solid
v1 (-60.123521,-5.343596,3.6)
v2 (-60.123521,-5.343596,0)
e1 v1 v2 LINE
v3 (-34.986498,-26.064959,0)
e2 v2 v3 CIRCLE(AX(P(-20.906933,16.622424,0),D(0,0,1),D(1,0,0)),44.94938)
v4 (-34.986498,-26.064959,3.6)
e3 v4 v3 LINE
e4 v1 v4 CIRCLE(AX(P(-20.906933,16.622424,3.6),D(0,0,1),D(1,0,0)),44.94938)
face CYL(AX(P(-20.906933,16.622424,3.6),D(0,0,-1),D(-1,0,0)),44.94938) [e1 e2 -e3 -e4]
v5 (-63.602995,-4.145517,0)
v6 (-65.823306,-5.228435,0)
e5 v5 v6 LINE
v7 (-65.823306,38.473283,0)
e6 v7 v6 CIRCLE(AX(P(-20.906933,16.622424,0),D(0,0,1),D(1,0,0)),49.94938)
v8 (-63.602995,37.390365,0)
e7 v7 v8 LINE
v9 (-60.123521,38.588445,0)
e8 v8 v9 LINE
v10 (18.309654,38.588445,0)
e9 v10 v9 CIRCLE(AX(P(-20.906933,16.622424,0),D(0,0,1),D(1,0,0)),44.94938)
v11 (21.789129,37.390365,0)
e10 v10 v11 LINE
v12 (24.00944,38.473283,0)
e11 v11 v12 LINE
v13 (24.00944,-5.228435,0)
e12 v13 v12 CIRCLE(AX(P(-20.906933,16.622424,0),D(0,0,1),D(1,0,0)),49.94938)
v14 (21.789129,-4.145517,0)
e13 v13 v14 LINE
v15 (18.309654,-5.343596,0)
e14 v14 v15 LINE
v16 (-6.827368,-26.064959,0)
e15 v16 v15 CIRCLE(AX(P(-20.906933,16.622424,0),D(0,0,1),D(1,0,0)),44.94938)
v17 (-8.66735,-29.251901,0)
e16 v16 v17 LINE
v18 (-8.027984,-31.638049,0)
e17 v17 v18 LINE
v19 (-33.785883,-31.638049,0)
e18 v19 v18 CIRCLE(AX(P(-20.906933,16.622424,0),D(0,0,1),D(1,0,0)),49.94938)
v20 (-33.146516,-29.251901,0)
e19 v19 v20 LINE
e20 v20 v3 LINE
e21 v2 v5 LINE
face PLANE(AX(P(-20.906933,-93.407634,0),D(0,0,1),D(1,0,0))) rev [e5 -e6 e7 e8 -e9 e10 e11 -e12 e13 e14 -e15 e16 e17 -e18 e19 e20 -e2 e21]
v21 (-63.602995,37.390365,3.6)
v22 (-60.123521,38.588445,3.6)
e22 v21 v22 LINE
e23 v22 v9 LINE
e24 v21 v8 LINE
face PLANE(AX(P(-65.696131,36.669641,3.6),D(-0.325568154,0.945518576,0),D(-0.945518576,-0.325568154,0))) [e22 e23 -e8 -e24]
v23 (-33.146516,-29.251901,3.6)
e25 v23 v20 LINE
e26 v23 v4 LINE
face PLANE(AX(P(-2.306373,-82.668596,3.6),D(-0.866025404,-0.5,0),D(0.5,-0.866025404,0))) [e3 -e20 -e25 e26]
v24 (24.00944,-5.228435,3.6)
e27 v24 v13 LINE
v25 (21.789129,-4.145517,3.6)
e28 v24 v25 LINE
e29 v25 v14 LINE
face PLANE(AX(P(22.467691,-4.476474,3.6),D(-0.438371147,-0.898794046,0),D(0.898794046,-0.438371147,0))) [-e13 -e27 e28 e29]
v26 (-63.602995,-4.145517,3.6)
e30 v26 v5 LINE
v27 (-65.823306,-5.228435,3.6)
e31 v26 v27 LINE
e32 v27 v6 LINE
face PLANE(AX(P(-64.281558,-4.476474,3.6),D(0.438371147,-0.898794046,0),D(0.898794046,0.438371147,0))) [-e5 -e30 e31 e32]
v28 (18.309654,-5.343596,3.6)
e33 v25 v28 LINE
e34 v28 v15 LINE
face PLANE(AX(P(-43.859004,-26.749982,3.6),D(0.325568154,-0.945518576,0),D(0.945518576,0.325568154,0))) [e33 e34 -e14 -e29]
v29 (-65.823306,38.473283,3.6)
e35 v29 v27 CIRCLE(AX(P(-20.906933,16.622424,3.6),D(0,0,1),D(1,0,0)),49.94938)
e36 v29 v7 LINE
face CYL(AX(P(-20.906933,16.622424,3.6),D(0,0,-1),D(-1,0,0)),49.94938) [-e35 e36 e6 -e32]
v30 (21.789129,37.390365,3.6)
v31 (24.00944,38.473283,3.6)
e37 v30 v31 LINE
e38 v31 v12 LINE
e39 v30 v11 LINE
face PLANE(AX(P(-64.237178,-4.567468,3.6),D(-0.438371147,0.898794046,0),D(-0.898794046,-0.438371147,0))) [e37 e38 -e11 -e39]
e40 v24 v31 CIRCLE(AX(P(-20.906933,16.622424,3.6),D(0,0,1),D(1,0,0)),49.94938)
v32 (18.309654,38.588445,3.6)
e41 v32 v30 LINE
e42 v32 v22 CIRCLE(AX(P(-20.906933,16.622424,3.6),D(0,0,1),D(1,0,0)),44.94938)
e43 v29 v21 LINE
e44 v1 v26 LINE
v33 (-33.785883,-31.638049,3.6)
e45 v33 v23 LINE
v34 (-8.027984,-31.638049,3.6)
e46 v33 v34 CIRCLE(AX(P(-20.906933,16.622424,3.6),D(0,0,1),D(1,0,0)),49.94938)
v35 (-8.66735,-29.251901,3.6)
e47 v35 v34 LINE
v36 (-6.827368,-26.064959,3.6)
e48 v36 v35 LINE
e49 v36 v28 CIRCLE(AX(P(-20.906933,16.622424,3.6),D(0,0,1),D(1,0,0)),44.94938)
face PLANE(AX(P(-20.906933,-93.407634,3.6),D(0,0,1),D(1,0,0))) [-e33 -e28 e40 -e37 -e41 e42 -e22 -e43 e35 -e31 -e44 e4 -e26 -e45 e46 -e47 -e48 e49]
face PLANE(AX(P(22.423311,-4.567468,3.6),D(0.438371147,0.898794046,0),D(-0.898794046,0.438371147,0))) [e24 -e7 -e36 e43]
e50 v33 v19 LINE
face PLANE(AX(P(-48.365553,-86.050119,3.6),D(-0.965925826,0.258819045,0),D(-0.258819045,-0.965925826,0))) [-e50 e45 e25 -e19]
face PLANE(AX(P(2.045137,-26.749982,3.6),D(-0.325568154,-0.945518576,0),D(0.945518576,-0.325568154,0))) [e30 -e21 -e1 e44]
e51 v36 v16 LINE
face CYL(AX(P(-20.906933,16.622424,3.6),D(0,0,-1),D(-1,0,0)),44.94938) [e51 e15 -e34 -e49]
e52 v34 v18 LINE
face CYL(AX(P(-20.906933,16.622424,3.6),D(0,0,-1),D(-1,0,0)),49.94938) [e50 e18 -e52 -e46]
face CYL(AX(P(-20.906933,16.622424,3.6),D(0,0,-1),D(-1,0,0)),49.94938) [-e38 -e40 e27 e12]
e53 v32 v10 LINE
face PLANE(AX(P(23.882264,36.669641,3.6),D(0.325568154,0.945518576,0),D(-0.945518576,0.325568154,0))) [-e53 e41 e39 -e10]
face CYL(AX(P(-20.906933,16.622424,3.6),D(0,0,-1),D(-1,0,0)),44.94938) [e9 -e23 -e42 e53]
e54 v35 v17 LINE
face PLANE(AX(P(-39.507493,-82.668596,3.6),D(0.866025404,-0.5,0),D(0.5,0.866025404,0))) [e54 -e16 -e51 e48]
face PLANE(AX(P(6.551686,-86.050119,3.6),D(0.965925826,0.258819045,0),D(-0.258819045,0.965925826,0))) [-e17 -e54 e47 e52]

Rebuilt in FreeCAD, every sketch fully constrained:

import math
import FreeCAD as App
import Part
import Sketcher

V = App.Vector
Q = App.Units.Quantity

doc = App.newDocument("Part")
body = doc.addObject("PartDesign::Body", "Body")

sketch1 = body.newObject("Sketcher::SketchObject", "Sketch")
sketch1.AttachmentSupport = (doc.getObject("XY_Plane"), [""])
sketch1.MapMode = "FlatFace"
sketch1.addGeometry(Part.LineSegment(V(-33.146516, -29.251901, 0), V(-33.785883, -31.638049, 0)), False)
sketch1.addGeometry(Part.ArcOfCircle(Part.Circle(V(-20.906933, 16.622424, 0), V(0, 0, 1), 49.94938), math.radians(-104.941935), math.radians(-75.058065)), False)
sketch1.addGeometry(Part.LineSegment(V(-8.027984, -31.638049, 0), V(-8.66735, -29.251901, 0)), False)
sketch1.addGeometry(Part.LineSegment(V(-8.66735, -29.251901, 0), V(-6.827368, -26.064959, 0)), False)
sketch1.addGeometry(Part.ArcOfCircle(Part.Circle(V(-20.906933, 16.622424, 0), V(0, 0, 1), 44.94938), math.radians(-71.745911), math.radians(-29.254089)), False)
sketch1.addGeometry(Part.LineSegment(V(18.309654, -5.343596, 0), V(21.789129, -4.145517, 0)), False)
sketch1.addGeometry(Part.LineSegment(V(21.789129, -4.145517, 0), V(24.00944, -5.228435, 0)), False)
sketch1.addGeometry(Part.ArcOfCircle(Part.Circle(V(-20.906933, 16.622424, 0), V(0, 0, 1), 49.94938), math.radians(-25.941935), math.radians(0)), False)
sketch1.addGeometry(Part.ArcOfCircle(Part.Circle(V(-20.906933, 16.622424, 0), V(0, 0, 1), 49.94938), math.radians(0), math.radians(25.941935)), False)
sketch1.addGeometry(Part.LineSegment(V(24.00944, 38.473283, 0), V(21.789129, 37.390365, 0)), False)
sketch1.addGeometry(Part.LineSegment(V(21.789129, 37.390365, 0), V(18.309654, 38.588445, 0)), False)
sketch1.addGeometry(Part.ArcOfCircle(Part.Circle(V(-20.906933, 16.622424, 0), V(0, 0, 1), 44.94938), math.radians(29.254089), math.radians(150.745911)), False)
sketch1.addGeometry(Part.LineSegment(V(-60.123521, 38.588445, 0), V(-63.602995, 37.390365, 0)), False)
sketch1.addGeometry(Part.LineSegment(V(-63.602995, 37.390365, 0), V(-65.823306, 38.473283, 0)), False)
sketch1.addGeometry(Part.ArcOfCircle(Part.Circle(V(-20.906933, 16.622424, 0), V(0, 0, 1), 49.94938), math.radians(154.058065), math.radians(205.941935)), False)
sketch1.addGeometry(Part.LineSegment(V(-65.823306, -5.228435, 0), V(-63.602995, -4.145517, 0)), False)
sketch1.addGeometry(Part.LineSegment(V(-63.602995, -4.145517, 0), V(-60.123521, -5.343596, 0)), False)
sketch1.addGeometry(Part.ArcOfCircle(Part.Circle(V(-20.906933, 16.622424, 0), V(0, 0, 1), 44.94938), math.radians(-150.745911), math.radians(-108.254089)), False)
sketch1.addGeometry(Part.LineSegment(V(-34.986498, -26.064959, 0), V(-33.146516, -29.251901, 0)), False)
sketch1.addConstraint(Sketcher.Constraint("Coincident", 0, 2, 1, 1))
sketch1.addConstraint(Sketcher.Constraint("Coincident", 1, 2, 2, 1))
sketch1.addConstraint(Sketcher.Constraint("Coincident", 2, 2, 3, 1))
sketch1.addConstraint(Sketcher.Constraint("Coincident", 3, 2, 4, 1))
sketch1.addConstraint(Sketcher.Constraint("Coincident", 4, 2, 5, 1))
sketch1.addConstraint(Sketcher.Constraint("Coincident", 5, 2, 6, 1))
sketch1.addConstraint(Sketcher.Constraint("Coincident", 6, 2, 7, 1))
sketch1.addConstraint(Sketcher.Constraint("Tangent", 7, 2, 8, 1))
sketch1.addConstraint(Sketcher.Constraint("Coincident", 8, 2, 9, 1))
sketch1.addConstraint(Sketcher.Constraint("Coincident", 9, 2, 10, 1))
sketch1.addConstraint(Sketcher.Constraint("Coincident", 10, 2, 11, 1))
sketch1.addConstraint(Sketcher.Constraint("Coincident", 11, 2, 12, 1))
sketch1.addConstraint(Sketcher.Constraint("Coincident", 12, 2, 13, 1))
sketch1.addConstraint(Sketcher.Constraint("Coincident", 13, 2, 14, 1))
sketch1.addConstraint(Sketcher.Constraint("Coincident", 14, 2, 15, 1))
sketch1.addConstraint(Sketcher.Constraint("Coincident", 15, 2, 16, 1))
sketch1.addConstraint(Sketcher.Constraint("Coincident", 16, 2, 17, 1))
sketch1.addConstraint(Sketcher.Constraint("Coincident", 17, 2, 18, 1))
sketch1.addConstraint(Sketcher.Constraint("Coincident", 18, 2, 0, 1))
sketch1.addConstraint(Sketcher.Constraint("Coincident", 4, 3, 1, 3))
sketch1.addConstraint(Sketcher.Constraint("Coincident", 7, 3, 1, 3))
sketch1.addConstraint(Sketcher.Constraint("Coincident", 11, 3, 1, 3))
sketch1.addConstraint(Sketcher.Constraint("Coincident", 14, 3, 1, 3))
sketch1.addConstraint(Sketcher.Constraint("Coincident", 17, 3, 1, 3))
sketch1.addConstraint(Sketcher.Constraint("Equal", 1, 7))
sketch1.addConstraint(Sketcher.Constraint("Equal", 7, 8))
sketch1.addConstraint(Sketcher.Constraint("Equal", 4, 11))
sketch1.addConstraint(Sketcher.Constraint("Equal", 8, 14))
sketch1.addConstraint(Sketcher.Constraint("Equal", 11, 17))
sketch1.addConstraint(Sketcher.Constraint("Parallel", 5, 12))
sketch1.addConstraint(Sketcher.Constraint("Parallel", 6, 13))
sketch1.addConstraint(Sketcher.Constraint("Parallel", 9, 15))
sketch1.addConstraint(Sketcher.Constraint("Parallel", 10, 16))
sketch1.addConstraint(Sketcher.Constraint("Horizontal", 0, 2, 1, 2))
sketch1.addConstraint(Sketcher.Constraint("Horizontal", 17, 3, 7, 2))
sketch1.addConstraint(Sketcher.Constraint("Horizontal", 10, 2, 11, 2))
sketch1.addConstraint(Sketcher.Constraint("Horizontal", 9, 2, 12, 2))
sketch1.addConstraint(Sketcher.Constraint("Horizontal", 8, 2, 13, 2))
sketch1.addConstraint(Sketcher.Constraint("Horizontal", 6, 2, 14, 2))
sketch1.addConstraint(Sketcher.Constraint("Horizontal", 5, 2, 15, 2))
sketch1.addConstraint(Sketcher.Constraint("Horizontal", 3, 2, 17, 2))
sketch1.addConstraint(Sketcher.Constraint("Horizontal", 2, 2, 18, 2))
sketch1.addConstraint(Sketcher.Constraint("Vertical", 6, 2, 8, 2))
sketch1.addConstraint(Sketcher.Constraint("Vertical", 5, 2, 9, 2))
sketch1.addConstraint(Sketcher.Constraint("Vertical", 4, 2, 10, 2))
sketch1.addConstraint(Sketcher.Constraint("Equal", 0, 2))
sketch1.addConstraint(Sketcher.Constraint("Equal", 3, 5))
sketch1.addConstraint(Sketcher.Constraint("Equal", 2, 6))
sketch1.addConstraint(Sketcher.Constraint("Angle", 0, Q("-105 deg")))
sketch1.addConstraint(Sketcher.Constraint("Angle", 3, Q("60 deg")))
sketch1.addConstraint(Sketcher.Constraint("Angle", 5, Q("19 deg")))
sketch1.addConstraint(Sketcher.Constraint("Angle", 6, Q("-26 deg")))
sketch1.addConstraint(Sketcher.Constraint("Radius", 1, 49.94938))
sketch1.addConstraint(Sketcher.Constraint("Radius", 4, 44.94938))
sketch1.addConstraint(Sketcher.Constraint("DistanceY", 2, 2, -1, 1, 29.251901))
sketch1.addConstraint(Sketcher.Constraint("DistanceX", 17, 2, -1, 1, 34.986498))
sketch1.addConstraint(Sketcher.Constraint("DistanceX", 0, 2, 1, 2, 25.757899))
sketch1.addConstraint(Sketcher.Constraint("DistanceY", 6, 2, 9, 2, 42.618801))
pad1 = body.newObject("PartDesign::Pad", "Pad")
pad1.Profile = sketch1
pad1.Length = 3.6

doc.recompute()
